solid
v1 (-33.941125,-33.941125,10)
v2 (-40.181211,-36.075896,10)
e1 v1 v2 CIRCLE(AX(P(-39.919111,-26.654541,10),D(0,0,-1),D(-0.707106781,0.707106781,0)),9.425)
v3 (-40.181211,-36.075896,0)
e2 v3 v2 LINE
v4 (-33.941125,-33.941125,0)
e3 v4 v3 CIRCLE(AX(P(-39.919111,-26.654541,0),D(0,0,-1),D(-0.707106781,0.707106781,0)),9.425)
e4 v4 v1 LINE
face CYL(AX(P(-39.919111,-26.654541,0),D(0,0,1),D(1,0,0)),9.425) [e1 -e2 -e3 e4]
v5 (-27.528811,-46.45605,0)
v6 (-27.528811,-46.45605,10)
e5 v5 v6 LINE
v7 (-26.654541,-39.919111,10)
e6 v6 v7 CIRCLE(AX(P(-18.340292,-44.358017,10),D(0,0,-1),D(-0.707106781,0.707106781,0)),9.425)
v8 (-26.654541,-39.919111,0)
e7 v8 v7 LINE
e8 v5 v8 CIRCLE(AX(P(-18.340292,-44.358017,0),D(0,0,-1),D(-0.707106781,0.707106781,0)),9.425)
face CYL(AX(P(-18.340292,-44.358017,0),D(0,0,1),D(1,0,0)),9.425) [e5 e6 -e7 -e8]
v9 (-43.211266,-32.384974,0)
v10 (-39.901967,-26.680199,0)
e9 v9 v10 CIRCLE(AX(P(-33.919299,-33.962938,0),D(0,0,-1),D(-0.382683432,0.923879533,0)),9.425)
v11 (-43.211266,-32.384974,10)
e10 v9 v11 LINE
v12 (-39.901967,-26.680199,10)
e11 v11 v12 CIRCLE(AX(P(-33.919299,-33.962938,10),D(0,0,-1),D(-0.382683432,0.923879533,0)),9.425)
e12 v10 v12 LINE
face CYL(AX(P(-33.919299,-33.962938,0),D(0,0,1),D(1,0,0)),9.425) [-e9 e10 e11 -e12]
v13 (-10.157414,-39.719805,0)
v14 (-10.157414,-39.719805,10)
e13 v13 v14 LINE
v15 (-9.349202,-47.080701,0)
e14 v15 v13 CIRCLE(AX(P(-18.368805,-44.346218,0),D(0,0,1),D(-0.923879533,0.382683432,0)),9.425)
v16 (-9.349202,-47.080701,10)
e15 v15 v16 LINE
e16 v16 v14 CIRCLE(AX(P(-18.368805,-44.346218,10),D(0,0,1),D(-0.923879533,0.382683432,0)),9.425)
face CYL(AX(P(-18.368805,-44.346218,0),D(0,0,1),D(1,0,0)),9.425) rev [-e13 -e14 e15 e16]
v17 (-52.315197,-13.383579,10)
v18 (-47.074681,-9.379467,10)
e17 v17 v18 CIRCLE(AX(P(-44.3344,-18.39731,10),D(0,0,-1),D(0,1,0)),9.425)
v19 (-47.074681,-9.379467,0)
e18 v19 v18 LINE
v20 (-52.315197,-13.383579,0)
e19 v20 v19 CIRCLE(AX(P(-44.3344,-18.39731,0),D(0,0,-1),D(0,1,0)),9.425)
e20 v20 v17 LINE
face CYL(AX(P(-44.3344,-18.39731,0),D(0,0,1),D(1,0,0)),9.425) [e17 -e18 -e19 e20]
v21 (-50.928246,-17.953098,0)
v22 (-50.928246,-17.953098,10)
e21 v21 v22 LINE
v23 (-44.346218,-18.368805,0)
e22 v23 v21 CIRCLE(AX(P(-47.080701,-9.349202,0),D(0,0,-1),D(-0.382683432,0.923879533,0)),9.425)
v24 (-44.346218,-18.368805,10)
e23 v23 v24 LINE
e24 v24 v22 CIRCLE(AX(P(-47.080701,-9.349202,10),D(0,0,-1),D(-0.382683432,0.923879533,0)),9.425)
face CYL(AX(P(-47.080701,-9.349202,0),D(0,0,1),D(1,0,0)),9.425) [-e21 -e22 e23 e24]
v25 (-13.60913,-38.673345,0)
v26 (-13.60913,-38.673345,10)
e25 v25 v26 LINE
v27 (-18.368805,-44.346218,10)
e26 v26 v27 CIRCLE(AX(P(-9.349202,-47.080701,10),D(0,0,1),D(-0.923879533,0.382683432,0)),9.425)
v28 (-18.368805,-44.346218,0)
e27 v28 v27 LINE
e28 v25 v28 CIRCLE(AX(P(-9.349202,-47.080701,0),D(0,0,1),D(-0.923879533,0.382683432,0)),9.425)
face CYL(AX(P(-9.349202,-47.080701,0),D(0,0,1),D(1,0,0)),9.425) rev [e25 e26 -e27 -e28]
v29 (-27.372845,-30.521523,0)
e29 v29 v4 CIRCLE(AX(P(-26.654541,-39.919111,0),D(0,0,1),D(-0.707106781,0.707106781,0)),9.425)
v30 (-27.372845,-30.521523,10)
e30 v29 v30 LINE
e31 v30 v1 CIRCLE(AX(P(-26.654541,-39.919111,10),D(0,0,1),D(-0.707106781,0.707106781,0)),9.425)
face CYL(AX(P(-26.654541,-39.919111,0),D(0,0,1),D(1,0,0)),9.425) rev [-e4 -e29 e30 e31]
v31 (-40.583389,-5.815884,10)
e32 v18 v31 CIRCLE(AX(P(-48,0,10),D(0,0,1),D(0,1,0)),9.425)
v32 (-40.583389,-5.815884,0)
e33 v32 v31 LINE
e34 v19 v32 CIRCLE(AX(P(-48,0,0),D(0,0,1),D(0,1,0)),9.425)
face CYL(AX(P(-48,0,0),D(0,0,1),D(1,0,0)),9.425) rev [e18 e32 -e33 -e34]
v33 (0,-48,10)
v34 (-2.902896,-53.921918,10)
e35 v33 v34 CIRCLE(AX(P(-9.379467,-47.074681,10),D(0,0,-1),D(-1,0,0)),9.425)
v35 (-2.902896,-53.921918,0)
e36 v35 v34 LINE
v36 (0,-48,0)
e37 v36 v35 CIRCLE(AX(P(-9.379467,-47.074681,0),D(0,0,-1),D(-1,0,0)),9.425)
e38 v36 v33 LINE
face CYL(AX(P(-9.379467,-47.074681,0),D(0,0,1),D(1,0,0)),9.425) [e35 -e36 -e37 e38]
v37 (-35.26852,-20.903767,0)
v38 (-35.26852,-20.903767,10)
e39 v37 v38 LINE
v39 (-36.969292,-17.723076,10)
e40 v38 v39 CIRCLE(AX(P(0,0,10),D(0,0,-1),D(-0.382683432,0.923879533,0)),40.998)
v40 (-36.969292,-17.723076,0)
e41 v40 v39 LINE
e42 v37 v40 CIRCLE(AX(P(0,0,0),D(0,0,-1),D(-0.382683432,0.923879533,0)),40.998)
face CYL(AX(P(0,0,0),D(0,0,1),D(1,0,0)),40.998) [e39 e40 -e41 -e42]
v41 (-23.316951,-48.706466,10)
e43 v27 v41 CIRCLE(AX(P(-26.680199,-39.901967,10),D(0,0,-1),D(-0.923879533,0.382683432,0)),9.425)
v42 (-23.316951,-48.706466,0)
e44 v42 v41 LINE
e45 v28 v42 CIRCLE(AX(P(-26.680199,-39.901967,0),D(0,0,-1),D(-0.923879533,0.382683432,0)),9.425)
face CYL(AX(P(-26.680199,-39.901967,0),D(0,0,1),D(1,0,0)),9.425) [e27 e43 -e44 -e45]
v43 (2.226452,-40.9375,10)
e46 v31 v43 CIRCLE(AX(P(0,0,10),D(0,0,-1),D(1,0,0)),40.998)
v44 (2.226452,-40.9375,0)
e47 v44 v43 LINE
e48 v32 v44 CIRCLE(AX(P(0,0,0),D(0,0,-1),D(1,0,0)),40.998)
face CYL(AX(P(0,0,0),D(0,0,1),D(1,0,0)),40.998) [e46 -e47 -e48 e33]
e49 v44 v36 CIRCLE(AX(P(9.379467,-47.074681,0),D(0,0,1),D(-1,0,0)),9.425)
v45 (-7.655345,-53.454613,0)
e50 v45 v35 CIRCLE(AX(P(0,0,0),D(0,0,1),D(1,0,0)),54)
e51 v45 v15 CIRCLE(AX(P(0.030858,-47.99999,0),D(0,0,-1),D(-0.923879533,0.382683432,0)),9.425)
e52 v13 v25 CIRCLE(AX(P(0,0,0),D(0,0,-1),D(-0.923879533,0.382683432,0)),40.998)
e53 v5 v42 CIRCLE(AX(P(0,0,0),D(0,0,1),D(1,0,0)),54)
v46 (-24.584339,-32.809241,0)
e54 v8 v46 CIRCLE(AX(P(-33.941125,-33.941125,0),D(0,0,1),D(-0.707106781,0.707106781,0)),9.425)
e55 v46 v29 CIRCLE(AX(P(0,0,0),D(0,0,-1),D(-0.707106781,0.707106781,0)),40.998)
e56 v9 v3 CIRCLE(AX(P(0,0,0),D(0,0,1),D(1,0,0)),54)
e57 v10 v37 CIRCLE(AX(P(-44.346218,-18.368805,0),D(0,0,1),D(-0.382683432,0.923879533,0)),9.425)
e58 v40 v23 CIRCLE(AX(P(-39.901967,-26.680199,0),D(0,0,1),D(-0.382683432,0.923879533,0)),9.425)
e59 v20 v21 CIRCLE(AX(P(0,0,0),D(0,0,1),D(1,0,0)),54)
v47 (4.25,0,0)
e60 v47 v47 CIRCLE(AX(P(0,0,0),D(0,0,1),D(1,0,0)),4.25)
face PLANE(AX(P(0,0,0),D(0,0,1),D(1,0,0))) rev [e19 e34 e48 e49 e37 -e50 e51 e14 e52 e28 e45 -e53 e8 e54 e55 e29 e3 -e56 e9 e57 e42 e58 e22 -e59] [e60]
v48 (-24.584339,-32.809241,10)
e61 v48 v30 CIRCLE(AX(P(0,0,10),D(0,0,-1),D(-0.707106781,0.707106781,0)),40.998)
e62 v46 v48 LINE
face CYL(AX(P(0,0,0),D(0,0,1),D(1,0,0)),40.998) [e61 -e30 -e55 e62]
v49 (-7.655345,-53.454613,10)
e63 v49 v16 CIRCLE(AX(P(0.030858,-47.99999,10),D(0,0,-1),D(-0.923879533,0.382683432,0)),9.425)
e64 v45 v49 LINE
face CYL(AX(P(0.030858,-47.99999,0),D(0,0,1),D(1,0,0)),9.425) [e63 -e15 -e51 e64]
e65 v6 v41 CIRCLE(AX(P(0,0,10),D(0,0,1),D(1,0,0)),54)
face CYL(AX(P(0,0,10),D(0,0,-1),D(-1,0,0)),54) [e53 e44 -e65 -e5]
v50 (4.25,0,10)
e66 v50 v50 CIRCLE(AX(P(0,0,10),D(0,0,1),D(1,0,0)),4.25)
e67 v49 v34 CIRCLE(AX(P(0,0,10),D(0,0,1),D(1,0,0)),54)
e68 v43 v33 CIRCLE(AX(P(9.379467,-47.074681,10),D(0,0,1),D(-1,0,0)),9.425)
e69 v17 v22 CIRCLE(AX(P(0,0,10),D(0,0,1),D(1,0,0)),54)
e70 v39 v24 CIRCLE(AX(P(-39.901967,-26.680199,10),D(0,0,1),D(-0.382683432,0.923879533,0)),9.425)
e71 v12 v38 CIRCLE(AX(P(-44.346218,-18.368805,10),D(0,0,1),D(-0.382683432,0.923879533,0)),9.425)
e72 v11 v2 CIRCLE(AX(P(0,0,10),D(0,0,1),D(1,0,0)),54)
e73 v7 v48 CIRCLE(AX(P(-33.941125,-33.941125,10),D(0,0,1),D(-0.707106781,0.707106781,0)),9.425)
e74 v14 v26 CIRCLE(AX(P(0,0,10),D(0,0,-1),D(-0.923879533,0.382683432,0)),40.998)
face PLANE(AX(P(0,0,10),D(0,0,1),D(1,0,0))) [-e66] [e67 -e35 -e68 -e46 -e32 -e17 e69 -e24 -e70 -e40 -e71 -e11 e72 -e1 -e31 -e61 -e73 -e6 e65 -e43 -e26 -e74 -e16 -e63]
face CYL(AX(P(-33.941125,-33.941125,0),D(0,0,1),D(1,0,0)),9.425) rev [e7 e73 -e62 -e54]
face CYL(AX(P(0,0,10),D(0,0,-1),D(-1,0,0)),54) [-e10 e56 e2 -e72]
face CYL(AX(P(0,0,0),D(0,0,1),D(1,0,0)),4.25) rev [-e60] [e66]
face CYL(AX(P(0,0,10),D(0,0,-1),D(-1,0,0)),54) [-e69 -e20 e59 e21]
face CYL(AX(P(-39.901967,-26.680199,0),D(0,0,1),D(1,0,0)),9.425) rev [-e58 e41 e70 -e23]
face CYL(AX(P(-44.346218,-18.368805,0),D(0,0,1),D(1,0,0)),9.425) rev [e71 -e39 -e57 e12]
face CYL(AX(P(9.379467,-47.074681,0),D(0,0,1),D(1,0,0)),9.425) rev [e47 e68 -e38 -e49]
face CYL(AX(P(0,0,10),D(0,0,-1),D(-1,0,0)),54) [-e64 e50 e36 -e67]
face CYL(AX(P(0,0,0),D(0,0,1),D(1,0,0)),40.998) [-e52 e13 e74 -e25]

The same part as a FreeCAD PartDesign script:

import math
import FreeCAD as App
import Part
import Sketcher

V = App.Vector

doc = App.newDocument("Part")
body = doc.addObject("PartDesign::Body", "Body")

sketch1 = body.newObject("Sketcher::SketchObject", "Sketch")
sketch1.AttachmentSupport = (doc.getObject("XY_Plane"), [""])
sketch1.MapMode = "FlatFace"
sketch1.addGeometry(Part.Circle(V(0, 0, 0), V(0, 0, 1), 54), False)
sketch1.addConstraint([
    Sketcher.Constraint("Coincident", 0, 3, -1, 1),
    Sketcher.Constraint("Diameter", 0, 108.0),
])
pad1 = body.newObject("PartDesign::Pad", "Pad")
pad1.Profile = sketch1
pad1.Length = 10

sketch2 = body.newObject("Sketcher::SketchObject", "Sketch001")
sketch2.AttachmentSupport = (doc.getObject("XY_Plane"), [""])
sketch2.MapMode = "FlatFace"
sketch2.addGeometry([
    Part.ArcOfCircle(Part.Circle(V(-9.4, 47.1, 0), V(0, 0, 1), 9.4), math.radians(-41), math.radians(6)),
    Part.ArcOfCircle(Part.Circle(V(9.4, 47.1, 0), V(0, 0, 1), 9.4), math.radians(133), math.radians(174)),
    Part.ArcOfCircle(Part.Circle(V(0, 0, 0), V(0, 0, 1), 54), math.radians(86.92), math.radians(104.35)),
    Part.ArcOfCircle(Part.Circle(V(-18.4, 44.3, 0), V(0, 0, 1), 9.4), math.radians(17), math.radians(58)),
    Part.ArcOfCircle(Part.Circle(V(0, 48, 0), V(0, 0, 1), 9.4), math.radians(-174), math.radians(-128)),
    Part.ArcOfCircle(Part.Circle(V(0, 0, 0), V(0, 0, 1), 41), math.radians(93.11), math.radians(98.16)),
], False)
sketch2.addConstraint([
    Sketcher.Constraint("Coincident", 0, 2, 1, 2),
    Sketcher.Constraint("Coincident", 1, 1, 2, 1),
    Sketcher.Constraint("Coincident", 2, 2, 3, 2),
    Sketcher.Constraint("Coincident", 3, 1, 4, 1),
    Sketcher.Constraint("Coincident", 4, 2, 5, 2),
    Sketcher.Constraint("Coincident", 5, 1, 0, 1),
    Sketcher.Constraint("Coincident", 2, 3, -1, 1),
    Sketcher.Constraint("Coincident", 5, 3, -1, 1),
    Sketcher.Constraint("Coincident", 0, 2, 4, 3),
    Sketcher.Constraint("Coincident", 3, 1, 0, 3),
    Sketcher.Constraint("Equal", 0, 1),
    Sketcher.Constraint("Equal", 1, 3),
    Sketcher.Constraint("Symmetric", 0, 3, 1, 3, -2),
    Sketcher.Constraint("Radius", 2, 54.0),
    Sketcher.Constraint("DistanceY", -1, 1, 4, 3, 48.0),
    Sketcher.Constraint("Radius", 0, 9.425),
    Sketcher.Constraint("Radius", 5, 40.998),
    Sketcher.Constraint("DistanceY", -1, 1, 3, 3, 44.3344),
    Sketcher.Constraint("DistanceY", -1, 1, 5, 1, 40.9375),
])
pocket1 = body.newObject("PartDesign::Pocket", "Pocket")
pocket1.Profile = sketch2
pocket1.Length = 10
pocket1.Reversed = True
doc.recompute()

polarpattern = body.newObject("PartDesign::PolarPattern", "PolarPattern")
polarpattern.Originals = [pocket1]
polarpattern.Axis = (doc.getObject("Z_Axis"), [""])
polarpattern.Angle = 360
polarpattern.Occurrences = 16
body.Tip = polarpattern

sketch3 = body.newObject("Sketcher::SketchObject", "Sketch002")
sketch3.AttachmentSupport = (doc.getObject("XY_Plane"), [""])
sketch3.MapMode = "FlatFace"
sketch3.addGeometry([
    Part.ArcOfCircle(Part.Circle(V(0, 0, 0), V(0, 0, 1), 41), math.radians(96), math.radians(141)),
    Part.ArcOfCircle(Part.Circle(V(0, 0, 0), V(0, 0, 1), 41), math.radians(-84), math.radians(96)),
    Part.LineSegment(V(4, -41, 0), V(6, -54, 0)),
    Part.ArcOfCircle(Part.Circle(V(0, 0, 0), V(0, 0, 1), 54), math.radians(-84), math.radians(96)),
    Part.ArcOfCircle(Part.Circle(V(0, 0, 0), V(0, 0, 1), 54), math.radians(96), math.radians(186)),
    Part.LineSegment(V(-54, -5, 0), V(-41, -4, 0)),
    Part.ArcOfCircle(Part.Circle(V(0, 0, 0), V(0, 0, 1), 41), math.radians(141), math.radians(186)),
], False)
sketch3.addConstraint([
    Sketcher.Constraint("Tangent", 0, 1, 1, 2),
    Sketcher.Constraint("Coincident", 1, 1, 2, 1),
    Sketcher.Constraint("Coincident", 2, 2, 3, 1),
    Sketcher.Constraint("Tangent", 3, 2, 4, 1),
    Sketcher.Constraint("Coincident", 4, 2, 5, 1),
    Sketcher.Constraint("Coincident", 5, 2, 6, 2),
    Sketcher.Constraint("Tangent", 6, 1, 0, 2),
    Sketcher.Constraint("Coincident", 0, 3, -1, 1),
    Sketcher.Constraint("Coincident", 3, 3, -1, 1),
    Sketcher.Constraint("Equal", 0, 1),
    Sketcher.Constraint("Equal", 3, 4),
    Sketcher.Constraint("Equal", 1, 6),
    Sketcher.Constraint("Radius", 3, 54.0),
    Sketcher.Constraint("Radius", 0, 40.998),
    Sketcher.Constraint("DistanceY", 4, 2, 5, 2, 1.276498),
    Sketcher.Constraint("DistanceX", 6, 1, 0, 1, 27.38971),
    Sketcher.Constraint("DistanceY", 6, 1, 3, 2, 27.697521),
    Sketcher.Constraint("DistanceX", 4, 2, 6, 1, 22.043062),
    Sketcher.Constraint("DistanceX", -1, 1, 1, 1, 4.306352),
    Sketcher.Constraint("DistanceX", -1, 1, 2, 2, 5.672058),
    Sketcher.Constraint("DistanceX", 3, 2, -1, 1, 5.672058),
])
pocket2 = body.newObject("PartDesign::Pocket", "Pocket001")
pocket2.Profile = sketch3
pocket2.Length = 10
pocket2.Reversed = True

sketch4 = body.newObject("Sketcher::SketchObject", "Sketch003")
sketch4.AttachmentSupport = (doc.getObject("XY_Plane"), [""])
sketch4.MapMode = "FlatFace"
sketch4.AttachmentOffset = App.Placement(V(0, 0, 10), App.Rotation())
sketch4.addGeometry(Part.Circle(V(0, 0, 0), V(0, 0, 1), 4.2), False)
sketch4.addConstraint([
    Sketcher.Constraint("Coincident", 0, 3, -1, 1),
    Sketcher.Constraint("Diameter", 0, 8.5),
])
pocket3 = body.newObject("PartDesign::Pocket", "Pocket002")
pocket3.Profile = sketch4
pocket3.Length = 10

doc.recompute()
